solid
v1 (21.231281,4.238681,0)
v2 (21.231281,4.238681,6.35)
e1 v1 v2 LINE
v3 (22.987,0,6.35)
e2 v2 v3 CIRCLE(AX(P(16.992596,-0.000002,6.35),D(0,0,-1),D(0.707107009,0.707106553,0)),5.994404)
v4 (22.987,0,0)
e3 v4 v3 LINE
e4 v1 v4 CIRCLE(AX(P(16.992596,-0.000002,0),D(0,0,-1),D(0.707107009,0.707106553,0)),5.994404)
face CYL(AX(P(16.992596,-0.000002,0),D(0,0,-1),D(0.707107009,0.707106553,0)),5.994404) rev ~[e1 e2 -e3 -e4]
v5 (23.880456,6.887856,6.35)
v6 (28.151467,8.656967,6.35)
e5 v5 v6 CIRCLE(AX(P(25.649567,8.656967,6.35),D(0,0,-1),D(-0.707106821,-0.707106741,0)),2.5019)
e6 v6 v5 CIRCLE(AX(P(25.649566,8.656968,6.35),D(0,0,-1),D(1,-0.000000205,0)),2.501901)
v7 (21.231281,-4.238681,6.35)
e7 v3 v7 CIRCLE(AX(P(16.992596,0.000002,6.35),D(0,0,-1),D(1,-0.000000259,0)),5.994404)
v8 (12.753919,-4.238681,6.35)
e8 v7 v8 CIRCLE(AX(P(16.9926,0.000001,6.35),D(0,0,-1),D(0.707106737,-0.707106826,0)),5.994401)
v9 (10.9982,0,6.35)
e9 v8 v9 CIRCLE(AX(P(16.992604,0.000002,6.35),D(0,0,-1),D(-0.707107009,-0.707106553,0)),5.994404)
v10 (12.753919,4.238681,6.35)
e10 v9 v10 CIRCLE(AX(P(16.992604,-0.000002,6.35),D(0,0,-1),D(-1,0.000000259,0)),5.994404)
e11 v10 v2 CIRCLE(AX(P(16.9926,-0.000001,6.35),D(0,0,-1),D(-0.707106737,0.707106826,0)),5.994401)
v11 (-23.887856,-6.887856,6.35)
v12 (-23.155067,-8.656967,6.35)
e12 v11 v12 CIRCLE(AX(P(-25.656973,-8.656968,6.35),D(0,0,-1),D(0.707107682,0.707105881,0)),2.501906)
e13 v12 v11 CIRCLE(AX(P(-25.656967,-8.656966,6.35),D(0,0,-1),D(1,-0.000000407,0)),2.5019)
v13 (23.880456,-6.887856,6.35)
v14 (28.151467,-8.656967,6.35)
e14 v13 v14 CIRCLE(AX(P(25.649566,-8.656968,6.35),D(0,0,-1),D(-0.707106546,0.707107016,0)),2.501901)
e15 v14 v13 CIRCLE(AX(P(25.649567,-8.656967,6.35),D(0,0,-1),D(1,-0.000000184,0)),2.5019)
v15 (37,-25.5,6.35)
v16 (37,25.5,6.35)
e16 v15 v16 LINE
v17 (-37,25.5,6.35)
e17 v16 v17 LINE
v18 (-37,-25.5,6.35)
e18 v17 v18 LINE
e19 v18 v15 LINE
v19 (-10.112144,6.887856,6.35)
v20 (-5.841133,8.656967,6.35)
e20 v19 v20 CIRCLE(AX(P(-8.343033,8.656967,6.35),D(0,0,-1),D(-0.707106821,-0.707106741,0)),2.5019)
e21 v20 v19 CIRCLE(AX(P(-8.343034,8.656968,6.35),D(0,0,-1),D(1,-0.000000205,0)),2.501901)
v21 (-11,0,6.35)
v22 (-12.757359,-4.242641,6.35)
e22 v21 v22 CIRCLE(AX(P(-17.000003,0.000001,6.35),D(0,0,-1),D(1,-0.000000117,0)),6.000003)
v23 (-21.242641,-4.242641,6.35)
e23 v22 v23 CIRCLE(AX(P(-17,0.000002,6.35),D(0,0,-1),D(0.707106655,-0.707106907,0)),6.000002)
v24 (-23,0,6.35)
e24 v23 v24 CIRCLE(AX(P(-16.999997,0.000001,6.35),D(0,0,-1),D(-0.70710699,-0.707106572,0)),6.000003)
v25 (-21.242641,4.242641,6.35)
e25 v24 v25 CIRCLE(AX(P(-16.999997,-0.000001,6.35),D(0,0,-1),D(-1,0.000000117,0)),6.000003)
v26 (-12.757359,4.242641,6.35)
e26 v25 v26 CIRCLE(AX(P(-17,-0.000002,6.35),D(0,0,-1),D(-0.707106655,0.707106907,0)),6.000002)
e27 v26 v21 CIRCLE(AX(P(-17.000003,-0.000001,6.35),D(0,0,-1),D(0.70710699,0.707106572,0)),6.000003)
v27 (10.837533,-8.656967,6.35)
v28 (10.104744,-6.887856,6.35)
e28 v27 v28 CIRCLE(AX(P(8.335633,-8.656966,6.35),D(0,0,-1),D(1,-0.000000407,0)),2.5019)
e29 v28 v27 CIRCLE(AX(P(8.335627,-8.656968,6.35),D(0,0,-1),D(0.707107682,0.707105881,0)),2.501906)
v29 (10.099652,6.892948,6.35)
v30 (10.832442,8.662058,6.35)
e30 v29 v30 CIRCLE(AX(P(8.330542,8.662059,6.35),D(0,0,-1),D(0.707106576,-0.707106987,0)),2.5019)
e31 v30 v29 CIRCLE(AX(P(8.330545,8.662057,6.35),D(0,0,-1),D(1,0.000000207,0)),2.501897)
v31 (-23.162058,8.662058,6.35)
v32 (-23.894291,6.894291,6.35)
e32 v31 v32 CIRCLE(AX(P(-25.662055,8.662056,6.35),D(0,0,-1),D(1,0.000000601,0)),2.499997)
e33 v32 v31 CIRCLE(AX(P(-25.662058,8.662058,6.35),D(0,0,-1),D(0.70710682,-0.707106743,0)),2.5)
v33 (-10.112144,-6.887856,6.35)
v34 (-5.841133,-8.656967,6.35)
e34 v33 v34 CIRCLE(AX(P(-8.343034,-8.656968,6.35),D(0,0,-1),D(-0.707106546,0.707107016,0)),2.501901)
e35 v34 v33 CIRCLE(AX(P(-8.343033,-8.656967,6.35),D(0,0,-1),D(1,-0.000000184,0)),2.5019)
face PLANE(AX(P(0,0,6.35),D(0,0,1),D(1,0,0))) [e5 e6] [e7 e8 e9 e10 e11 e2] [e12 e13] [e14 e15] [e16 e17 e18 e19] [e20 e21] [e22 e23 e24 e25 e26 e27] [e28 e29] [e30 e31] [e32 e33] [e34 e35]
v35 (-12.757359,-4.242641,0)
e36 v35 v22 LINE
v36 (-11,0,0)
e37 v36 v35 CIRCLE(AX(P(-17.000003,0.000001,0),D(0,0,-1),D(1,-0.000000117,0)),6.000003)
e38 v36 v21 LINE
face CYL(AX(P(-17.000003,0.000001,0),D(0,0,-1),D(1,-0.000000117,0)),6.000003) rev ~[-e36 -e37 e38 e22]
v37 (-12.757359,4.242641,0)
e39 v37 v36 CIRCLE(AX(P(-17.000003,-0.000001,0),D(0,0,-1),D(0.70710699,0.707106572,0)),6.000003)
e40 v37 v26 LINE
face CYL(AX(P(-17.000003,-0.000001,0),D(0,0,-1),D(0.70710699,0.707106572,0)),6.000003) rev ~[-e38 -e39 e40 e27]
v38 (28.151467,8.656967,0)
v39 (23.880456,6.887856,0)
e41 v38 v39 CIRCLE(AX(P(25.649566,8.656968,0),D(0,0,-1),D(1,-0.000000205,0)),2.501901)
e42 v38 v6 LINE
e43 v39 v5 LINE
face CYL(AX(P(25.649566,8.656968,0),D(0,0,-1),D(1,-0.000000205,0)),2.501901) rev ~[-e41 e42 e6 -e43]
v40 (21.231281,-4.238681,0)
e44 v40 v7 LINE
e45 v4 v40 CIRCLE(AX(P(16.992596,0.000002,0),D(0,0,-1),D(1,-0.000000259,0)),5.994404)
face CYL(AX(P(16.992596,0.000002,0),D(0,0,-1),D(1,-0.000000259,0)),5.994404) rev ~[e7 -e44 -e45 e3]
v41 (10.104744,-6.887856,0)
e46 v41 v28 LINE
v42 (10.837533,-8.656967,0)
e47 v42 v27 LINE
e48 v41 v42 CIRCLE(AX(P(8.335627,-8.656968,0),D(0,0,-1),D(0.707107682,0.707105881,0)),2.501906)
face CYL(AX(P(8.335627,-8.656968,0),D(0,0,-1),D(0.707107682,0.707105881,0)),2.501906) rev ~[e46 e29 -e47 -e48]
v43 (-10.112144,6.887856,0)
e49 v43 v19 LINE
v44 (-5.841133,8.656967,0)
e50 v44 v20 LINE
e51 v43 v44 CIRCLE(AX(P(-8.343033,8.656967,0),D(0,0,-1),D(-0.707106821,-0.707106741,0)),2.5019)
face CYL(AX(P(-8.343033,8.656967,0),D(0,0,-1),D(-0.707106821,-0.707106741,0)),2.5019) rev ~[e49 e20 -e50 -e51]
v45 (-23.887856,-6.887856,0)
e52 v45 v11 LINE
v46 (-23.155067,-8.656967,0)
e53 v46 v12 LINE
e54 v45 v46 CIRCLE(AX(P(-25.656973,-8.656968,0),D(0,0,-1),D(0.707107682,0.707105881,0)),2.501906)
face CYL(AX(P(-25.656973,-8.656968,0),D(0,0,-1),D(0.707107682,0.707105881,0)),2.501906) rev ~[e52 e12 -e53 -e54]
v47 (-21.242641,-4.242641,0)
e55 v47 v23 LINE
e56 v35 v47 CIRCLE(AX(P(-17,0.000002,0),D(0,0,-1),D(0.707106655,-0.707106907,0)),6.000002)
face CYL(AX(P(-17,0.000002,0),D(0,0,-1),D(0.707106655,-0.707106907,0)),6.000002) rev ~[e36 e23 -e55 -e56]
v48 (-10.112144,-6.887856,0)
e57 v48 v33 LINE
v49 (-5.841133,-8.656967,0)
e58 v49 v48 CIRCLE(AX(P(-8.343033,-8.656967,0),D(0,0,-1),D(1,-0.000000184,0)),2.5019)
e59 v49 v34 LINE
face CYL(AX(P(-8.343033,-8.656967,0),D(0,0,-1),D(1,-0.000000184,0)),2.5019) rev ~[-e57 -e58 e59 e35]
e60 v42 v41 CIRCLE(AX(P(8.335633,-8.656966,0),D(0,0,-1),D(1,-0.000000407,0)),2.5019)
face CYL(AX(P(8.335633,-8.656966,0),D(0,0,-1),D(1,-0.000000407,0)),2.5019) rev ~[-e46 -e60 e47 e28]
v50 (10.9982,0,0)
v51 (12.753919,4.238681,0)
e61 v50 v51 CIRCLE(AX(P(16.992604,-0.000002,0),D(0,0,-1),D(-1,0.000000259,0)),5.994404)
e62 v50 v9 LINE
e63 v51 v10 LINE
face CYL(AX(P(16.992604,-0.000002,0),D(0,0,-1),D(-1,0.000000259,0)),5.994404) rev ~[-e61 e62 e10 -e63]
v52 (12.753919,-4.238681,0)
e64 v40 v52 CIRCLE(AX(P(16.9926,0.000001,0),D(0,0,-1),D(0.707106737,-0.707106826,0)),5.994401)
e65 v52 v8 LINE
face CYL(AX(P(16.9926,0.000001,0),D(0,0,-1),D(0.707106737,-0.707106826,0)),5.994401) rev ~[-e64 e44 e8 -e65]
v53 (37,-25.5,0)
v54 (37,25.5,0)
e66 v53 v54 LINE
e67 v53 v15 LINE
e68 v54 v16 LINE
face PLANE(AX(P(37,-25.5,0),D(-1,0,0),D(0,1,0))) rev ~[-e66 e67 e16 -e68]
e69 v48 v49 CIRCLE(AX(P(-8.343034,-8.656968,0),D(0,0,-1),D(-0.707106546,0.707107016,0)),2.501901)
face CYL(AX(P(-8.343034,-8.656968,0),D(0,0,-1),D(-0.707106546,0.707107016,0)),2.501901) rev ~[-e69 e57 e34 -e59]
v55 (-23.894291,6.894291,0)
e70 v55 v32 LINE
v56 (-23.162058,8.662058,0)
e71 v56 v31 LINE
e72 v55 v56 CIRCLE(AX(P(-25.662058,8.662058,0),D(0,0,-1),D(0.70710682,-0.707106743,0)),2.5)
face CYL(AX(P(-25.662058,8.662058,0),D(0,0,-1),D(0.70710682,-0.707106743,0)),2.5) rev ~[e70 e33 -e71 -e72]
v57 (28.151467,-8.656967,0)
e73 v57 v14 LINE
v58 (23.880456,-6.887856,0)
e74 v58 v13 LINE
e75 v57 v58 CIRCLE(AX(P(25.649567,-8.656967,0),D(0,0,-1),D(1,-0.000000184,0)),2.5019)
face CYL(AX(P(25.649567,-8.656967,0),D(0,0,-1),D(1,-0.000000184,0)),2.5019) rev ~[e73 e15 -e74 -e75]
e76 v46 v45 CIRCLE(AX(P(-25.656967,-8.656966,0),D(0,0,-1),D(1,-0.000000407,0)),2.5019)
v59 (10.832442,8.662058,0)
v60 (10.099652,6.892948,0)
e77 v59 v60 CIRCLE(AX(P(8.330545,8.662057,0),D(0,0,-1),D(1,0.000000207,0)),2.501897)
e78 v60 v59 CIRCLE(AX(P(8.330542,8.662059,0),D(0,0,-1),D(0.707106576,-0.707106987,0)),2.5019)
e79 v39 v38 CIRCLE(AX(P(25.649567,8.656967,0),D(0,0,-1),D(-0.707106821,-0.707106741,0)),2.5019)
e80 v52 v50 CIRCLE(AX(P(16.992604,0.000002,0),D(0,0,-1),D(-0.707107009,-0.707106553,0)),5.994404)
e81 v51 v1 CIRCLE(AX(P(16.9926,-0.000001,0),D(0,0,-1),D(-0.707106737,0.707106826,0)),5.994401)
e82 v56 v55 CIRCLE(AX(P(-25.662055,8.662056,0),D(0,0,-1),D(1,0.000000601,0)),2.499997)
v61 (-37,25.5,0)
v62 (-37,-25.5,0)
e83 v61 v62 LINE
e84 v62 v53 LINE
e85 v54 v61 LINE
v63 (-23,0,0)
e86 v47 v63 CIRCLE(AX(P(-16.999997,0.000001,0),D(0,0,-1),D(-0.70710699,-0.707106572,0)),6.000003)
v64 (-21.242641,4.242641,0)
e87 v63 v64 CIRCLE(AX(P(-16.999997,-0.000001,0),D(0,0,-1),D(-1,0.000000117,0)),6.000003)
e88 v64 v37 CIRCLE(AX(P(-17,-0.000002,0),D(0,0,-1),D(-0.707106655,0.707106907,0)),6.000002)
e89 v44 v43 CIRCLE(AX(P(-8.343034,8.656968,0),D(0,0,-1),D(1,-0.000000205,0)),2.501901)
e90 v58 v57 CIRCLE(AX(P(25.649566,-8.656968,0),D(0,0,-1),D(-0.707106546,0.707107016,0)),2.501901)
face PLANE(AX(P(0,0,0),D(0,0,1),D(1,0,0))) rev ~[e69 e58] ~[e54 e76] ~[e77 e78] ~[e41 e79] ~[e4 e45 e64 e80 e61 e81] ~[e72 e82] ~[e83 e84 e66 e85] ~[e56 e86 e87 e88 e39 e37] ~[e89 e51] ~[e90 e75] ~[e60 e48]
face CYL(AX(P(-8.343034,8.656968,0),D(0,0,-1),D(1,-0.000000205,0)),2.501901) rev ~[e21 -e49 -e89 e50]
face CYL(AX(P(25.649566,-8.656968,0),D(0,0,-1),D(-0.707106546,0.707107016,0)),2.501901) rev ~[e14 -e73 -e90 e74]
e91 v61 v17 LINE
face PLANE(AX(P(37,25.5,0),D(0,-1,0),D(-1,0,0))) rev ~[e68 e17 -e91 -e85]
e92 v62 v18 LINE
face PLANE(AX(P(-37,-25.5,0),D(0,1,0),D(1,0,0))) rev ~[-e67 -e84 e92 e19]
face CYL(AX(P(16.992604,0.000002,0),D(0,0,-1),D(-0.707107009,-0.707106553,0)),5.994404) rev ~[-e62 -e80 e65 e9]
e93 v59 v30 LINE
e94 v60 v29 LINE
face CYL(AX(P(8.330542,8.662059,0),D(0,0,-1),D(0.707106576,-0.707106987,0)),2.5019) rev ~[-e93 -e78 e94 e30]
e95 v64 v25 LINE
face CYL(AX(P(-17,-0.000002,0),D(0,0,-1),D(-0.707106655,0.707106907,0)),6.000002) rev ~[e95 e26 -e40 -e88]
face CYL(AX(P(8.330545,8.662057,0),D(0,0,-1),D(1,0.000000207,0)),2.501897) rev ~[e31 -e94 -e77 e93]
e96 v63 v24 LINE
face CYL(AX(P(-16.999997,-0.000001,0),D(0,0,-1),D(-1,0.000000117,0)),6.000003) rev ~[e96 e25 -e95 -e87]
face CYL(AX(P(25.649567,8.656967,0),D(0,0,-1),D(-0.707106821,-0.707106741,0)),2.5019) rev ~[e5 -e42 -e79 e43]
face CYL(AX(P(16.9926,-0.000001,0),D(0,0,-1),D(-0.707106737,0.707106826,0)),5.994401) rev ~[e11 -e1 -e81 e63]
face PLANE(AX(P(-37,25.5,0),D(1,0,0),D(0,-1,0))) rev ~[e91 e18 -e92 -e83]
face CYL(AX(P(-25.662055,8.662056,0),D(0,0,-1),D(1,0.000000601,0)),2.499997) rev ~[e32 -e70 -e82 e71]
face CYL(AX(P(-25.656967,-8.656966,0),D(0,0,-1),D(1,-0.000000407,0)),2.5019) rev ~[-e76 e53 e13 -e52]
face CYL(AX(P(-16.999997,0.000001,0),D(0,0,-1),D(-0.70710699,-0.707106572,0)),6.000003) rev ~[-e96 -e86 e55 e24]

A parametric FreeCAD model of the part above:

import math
import FreeCAD as App
import Part
import Sketcher
Q = App.Units.Quantity

doc = App.newDocument("Part")
body = doc.addObject("PartDesign::Body", "Body")

sketch1 = body.newObject("Sketcher::SketchObject", "Sketch")
sketch1.AttachmentSupport = (doc.getObject("XY_Plane"), [""])
sketch1.MapMode = "FlatFace"
sketch1.addGeometry([
    Part.LineSegment(App.Vector(-37, -25.5, 0), App.Vector(37, -25.5, 0)),
    Part.LineSegment(App.Vector(37, -25.5, 0), App.Vector(37, 25.5, 0)),
    Part.LineSegment(App.Vector(37, 25.5, 0), App.Vector(-37, 25.5, 0)),
    Part.LineSegment(App.Vector(-37, 25.5, 0), App.Vector(-37, -25.5, 0)),
    Part.ArcOfCircle(Part.Circle(App.Vector(-25.7, -8.7, 0), App.Vector(0, 0, 1), 2.5), math.radians(0), math.radians(45)),
    Part.ArcOfCircle(Part.Circle(App.Vector(-25.7, -8.7, 0), App.Vector(0, 0, 1), 2.5), math.radians(45), math.radians(360)),
    Part.ArcOfCircle(Part.Circle(App.Vector(-8.3, -8.7, 0), App.Vector(0, 0, 1), 2.5), math.radians(0), math.radians(135)),
    Part.ArcOfCircle(Part.Circle(App.Vector(-8.3, -8.7, 0), App.Vector(0, 0, 1), 2.5), math.radians(135), math.radians(360)),
    Part.ArcOfCircle(Part.Circle(App.Vector(-17, 0, 0), App.Vector(0, 0, 1), 6), math.radians(-135), math.radians(-45)),
    Part.ArcOfCircle(Part.Circle(App.Vector(-17, 0, 0), App.Vector(0, 0, 1), 6), math.radians(-180), math.radians(-135)),
    Part.ArcOfCircle(Part.Circle(App.Vector(-17, 0, 0), App.Vector(0, 0, 1), 6), math.radians(135), math.radians(180)),
    Part.ArcOfCircle(Part.Circle(App.Vector(-17, 0, 0), App.Vector(0, 0, 1), 6), math.radians(45), math.radians(135)),
    Part.ArcOfCircle(Part.Circle(App.Vector(-17, 0, 0), App.Vector(0, 0, 1), 6), math.radians(0), math.radians(45)),
    Part.ArcOfCircle(Part.Circle(App.Vector(-17, 0, 0), App.Vector(0, 0, 1), 6), math.radians(-45), math.radians(0)),
    Part.ArcOfCircle(Part.Circle(App.Vector(8.3, -8.7, 0), App.Vector(0, 0, 1), 2.5), math.radians(0), math.radians(45)),
    Part.ArcOfCircle(Part.Circle(App.Vector(8.3, -8.7, 0), App.Vector(0, 0, 1), 2.5), math.radians(45), math.radians(360)),
    Part.ArcOfCircle(Part.Circle(App.Vector(25.6, -8.7, 0), App.Vector(0, 0, 1), 2.5), math.radians(0), math.radians(135)),
    Part.ArcOfCircle(Part.Circle(App.Vector(25.6, -8.7, 0), App.Vector(0, 0, 1), 2.5), math.radians(135), math.radians(360)),
    Part.ArcOfCircle(Part.Circle(App.Vector(17, 0, 0), App.Vector(0, 0, 1), 6), math.radians(-135), math.radians(-45)),
    Part.ArcOfCircle(Part.Circle(App.Vector(17, 0, 0), App.Vector(0, 0, 1), 6), math.radians(-180), math.radians(-135)),
    Part.ArcOfCircle(Part.Circle(App.Vector(17, 0, 0), App.Vector(0, 0, 1), 6), math.radians(135), math.radians(180)),
    Part.ArcOfCircle(Part.Circle(App.Vector(17, 0, 0), App.Vector(0, 0, 1), 6), math.radians(45), math.radians(135)),
    Part.ArcOfCircle(Part.Circle(App.Vector(17, 0, 0), App.Vector(0, 0, 1), 6), math.radians(0), math.radians(45)),
    Part.ArcOfCircle(Part.Circle(App.Vector(17, 0, 0), App.Vector(0, 0, 1), 6), math.radians(-45), math.radians(0)),
    Part.ArcOfCircle(Part.Circle(App.Vector(-25.7, 8.7, 0), App.Vector(0, 0, 1), 2.5), math.radians(0), math.radians(315)),
    Part.ArcOfCircle(Part.Circle(App.Vector(-25.7, 8.7, 0), App.Vector(0, 0, 1), 2.5), math.radians(-45), math.radians(0)),
    Part.ArcOfCircle(Part.Circle(App.Vector(-8.3, 8.7, 0), App.Vector(0, 0, 1), 2.5), math.radians(0), math.radians(225)),
    Part.ArcOfCircle(Part.Circle(App.Vector(-8.3, 8.7, 0), App.Vector(0, 0, 1), 2.5), math.radians(-135), math.radians(0)),
    Part.ArcOfCircle(Part.Circle(App.Vector(8.3, 8.7, 0), App.Vector(0, 0, 1), 2.5), math.radians(0), math.radians(315)),
    Part.ArcOfCircle(Part.Circle(App.Vector(8.3, 8.7, 0), App.Vector(0, 0, 1), 2.5), math.radians(-45), math.radians(0)),
    Part.ArcOfCircle(Part.Circle(App.Vector(25.6, 8.7, 0), App.Vector(0, 0, 1), 2.5), math.radians(0), math.radians(225)),
    Part.ArcOfCircle(Part.Circle(App.Vector(25.6, 8.7, 0), App.Vector(0, 0, 1), 2.5), math.radians(-135), math.radians(0)),
], False)
sketch1.addConstraint([
    Sketcher.Constraint("Coincident", 0, 2, 1, 1),
    Sketcher.Constraint("Coincident", 1, 2, 2, 1),
    Sketcher.Constraint("Coincident", 2, 2, 3, 1),
    Sketcher.Constraint("Coincident", 3, 2, 0, 1),
    Sketcher.Constraint("Tangent", 4, 1, 5, 2),
    Sketcher.Constraint("Coincident", 5, 1, 4, 2),
    Sketcher.Constraint("Tangent", 6, 1, 7, 2),
    Sketcher.Constraint("Coincident", 7, 1, 6, 2),
    Sketcher.Constraint("Tangent", 8, 1, 9, 2),
    Sketcher.Constraint("Tangent", 9, 1, 10, 2),
    Sketcher.Constraint("Tangent", 10, 1, 11, 2),
    Sketcher.Constraint("Tangent", 11, 1, 12, 2),
    Sketcher.Constraint("Tangent", 12, 1, 13, 2),
    Sketcher.Constraint("Tangent", 13, 1, 8, 2),
    Sketcher.Constraint("Tangent", 14, 1, 15, 2),
    Sketcher.Constraint("Coincident", 15, 1, 14, 2),
    Sketcher.Constraint("Tangent", 16, 1, 17, 2),
    Sketcher.Constraint("Coincident", 17, 1, 16, 2),
    Sketcher.Constraint("Tangent", 18, 1, 19, 2),
    Sketcher.Constraint("Tangent", 19, 1, 20, 2),
    Sketcher.Constraint("Tangent", 20, 1, 21, 2),
    Sketcher.Constraint("Tangent", 21, 1, 22, 2),
    Sketcher.Constraint("Tangent", 22, 1, 23, 2),
    Sketcher.Constraint("Tangent", 23, 1, 18, 2),
    Sketcher.Constraint("Tangent", 24, 1, 25, 2),
    Sketcher.Constraint("Coincident", 25, 1, 24, 2),
    Sketcher.Constraint("Tangent", 26, 1, 27, 2),
    Sketcher.Constraint("Coincident", 27, 1, 26, 2),
    Sketcher.Constraint("Tangent", 28, 1, 29, 2),
    Sketcher.Constraint("Coincident", 29, 1, 28, 2),
    Sketcher.Constraint("Tangent", 30, 1, 31, 2),
    Sketcher.Constraint("Coincident", 31, 1, 30, 2),
    Sketcher.Constraint("Horizontal", 0),
    Sketcher.Constraint("Vertical", 1),
    Sketcher.Constraint("Horizontal", 2),
    Sketcher.Constraint("Vertical", 3),
    Sketcher.Constraint("Coincident", 10, 3, 8, 3),
    Sketcher.Constraint("Coincident", 20, 3, 18, 3),
    Sketcher.Constraint("Equal", 5, 6),
    Sketcher.Constraint("Equal", 10, 11),
    Sketcher.Constraint("Equal", 4, 14),
    Sketcher.Constraint("Equal", 15, 16),
    Sketcher.Constraint("Equal", 18, 21),
    Sketcher.Constraint("Equal", 17, 26),
    Sketcher.Constraint("Equal", 27, 28),
    Sketcher.Constraint("Equal", 28, 30),
    Sketcher.Constraint("Symmetric", 0, 2, 2, 2, -1, 1),
    Sketcher.Constraint("Symmetric", 6, 3, 26, 3, -1),
    Sketcher.Constraint("Symmetric", 16, 3, 30, 3, -1),
    Sketcher.Constraint("Symmetric", 8, 1, 10, 1, -1),
    Sketcher.Constraint("Symmetric", 18, 1, 20, 1, -1),
    Sketcher.Constraint("PointOnObject", 9, 1, -1),
    Sketcher.Constraint("PointOnObject", 12, 1, -1),
    Sketcher.Constraint("PointOnObject", 19, 1, -1),
    Sketcher.Constraint("PointOnObject", 22, 1, -1),
    Sketcher.Constraint("Horizontal", 5, 3, 6, 3),
    Sketcher.Constraint("Horizontal", 7, 3, 14, 3),
    Sketcher.Constraint("Horizontal", 15, 3, 16, 3),
    Sketcher.Constraint("Horizontal", 24, 3, 28, 3),
    Sketcher.Constraint("Horizontal", 17, 3, 4, 1),
    Sketcher.Constraint("Horizontal", 4, 1, 6, 1),
    Sketcher.Constraint("Horizontal", 5, 1, 7, 1),
    Sketcher.Constraint("Horizontal", 10, 1, 11, 1),
    Sketcher.Constraint("Horizontal", 8, 1, 13, 1),
    Sketcher.Constraint("Horizontal", 6, 1, 14, 1),
    Sketcher.Constraint("Horizontal", 7, 1, 15, 1),
    Sketcher.Constraint("Horizontal", 14, 1, 16, 1),
    Sketcher.Constraint("Horizontal", 15, 1, 17, 1),
    Sketcher.Constraint("Horizontal", 20, 1, 21, 1),
    Sketcher.Constraint("Horizontal", 18, 1, 23, 1),
    Sketcher.Constraint("Horizontal", 29, 3, 24, 1),
    Sketcher.Constraint("Horizontal", 31, 3, 26, 1),
    Sketcher.Constraint("Horizontal", 24, 1, 28, 1),
    Sketcher.Constraint("Horizontal", 26, 1, 30, 1),
    Sketcher.Constraint("Horizontal", 27, 1, 31, 1),
    Sketcher.Constraint("Vertical", 7, 1, 27, 1),
    Sketcher.Constraint("Radius", 18, Q("0.236 in")),
    Sketcher.Constraint("Radius", 5, Q("0.0985 in")),
    Sketcher.Constraint("Radius", 8, Q("6.000002 mm")),
    Sketcher.Constraint("Radius", 24, Q("2.5 mm")),
    Sketcher.Constraint("DistanceX", -1, 1, 18, 3, Q("0.669 in")),
    Sketcher.Constraint("DistanceX", 0, 1, 0, 2, Q("74 mm")),
    Sketcher.Constraint("DistanceY", 1, 1, 1, 2, Q("51 mm")),
    Sketcher.Constraint("DistanceX", 8, 3, -1, 1, Q("17 mm")),
    Sketcher.Constraint("DistanceX", 7, 3, 16, 3, Q("33.9926 mm")),
    Sketcher.Constraint("DistanceY", 4, 3, -1, 1, Q("8.656968 mm")),
    Sketcher.Constraint("DistanceX", 24, 3, -1, 1, Q("25.662058 mm")),
    Sketcher.Constraint("DistanceY", -1, 1, 28, 3, Q("8.662059 mm")),
    Sketcher.Constraint("DistanceX", 8, 1, -1, 1, Q("21.242641 mm")),
    Sketcher.Constraint("DistanceX", -1, 1, 18, 1, Q("12.753919 mm")),
    Sketcher.Constraint("DistanceX", 25, 1, -1, 1, Q("23.894291 mm")),
    Sketcher.Constraint("DistanceX", -1, 1, 28, 1, Q("10.832442 mm")),
    Sketcher.Constraint("DistanceX", 4, 3, 6, 3, Q("17.313939 mm")),
    Sketcher.Constraint("DistanceX", 5, 3, 9, 3, Q("8.65697 mm")),
    Sketcher.Constraint("DistanceX", 7, 3, 14, 3, Q("16.67866 mm")),
    Sketcher.Constraint("DistanceX", 5, 1, 4, 1, Q("0.732789 mm")),
    Sketcher.Constraint("DistanceX", 29, 1, 28, 1, Q("0.73279 mm")),
])
pad1 = body.newObject("PartDesign::Pad", "Pad")
pad1.Profile = sketch1
pad1.Length = Q("0.25 in")

doc.recompute()
